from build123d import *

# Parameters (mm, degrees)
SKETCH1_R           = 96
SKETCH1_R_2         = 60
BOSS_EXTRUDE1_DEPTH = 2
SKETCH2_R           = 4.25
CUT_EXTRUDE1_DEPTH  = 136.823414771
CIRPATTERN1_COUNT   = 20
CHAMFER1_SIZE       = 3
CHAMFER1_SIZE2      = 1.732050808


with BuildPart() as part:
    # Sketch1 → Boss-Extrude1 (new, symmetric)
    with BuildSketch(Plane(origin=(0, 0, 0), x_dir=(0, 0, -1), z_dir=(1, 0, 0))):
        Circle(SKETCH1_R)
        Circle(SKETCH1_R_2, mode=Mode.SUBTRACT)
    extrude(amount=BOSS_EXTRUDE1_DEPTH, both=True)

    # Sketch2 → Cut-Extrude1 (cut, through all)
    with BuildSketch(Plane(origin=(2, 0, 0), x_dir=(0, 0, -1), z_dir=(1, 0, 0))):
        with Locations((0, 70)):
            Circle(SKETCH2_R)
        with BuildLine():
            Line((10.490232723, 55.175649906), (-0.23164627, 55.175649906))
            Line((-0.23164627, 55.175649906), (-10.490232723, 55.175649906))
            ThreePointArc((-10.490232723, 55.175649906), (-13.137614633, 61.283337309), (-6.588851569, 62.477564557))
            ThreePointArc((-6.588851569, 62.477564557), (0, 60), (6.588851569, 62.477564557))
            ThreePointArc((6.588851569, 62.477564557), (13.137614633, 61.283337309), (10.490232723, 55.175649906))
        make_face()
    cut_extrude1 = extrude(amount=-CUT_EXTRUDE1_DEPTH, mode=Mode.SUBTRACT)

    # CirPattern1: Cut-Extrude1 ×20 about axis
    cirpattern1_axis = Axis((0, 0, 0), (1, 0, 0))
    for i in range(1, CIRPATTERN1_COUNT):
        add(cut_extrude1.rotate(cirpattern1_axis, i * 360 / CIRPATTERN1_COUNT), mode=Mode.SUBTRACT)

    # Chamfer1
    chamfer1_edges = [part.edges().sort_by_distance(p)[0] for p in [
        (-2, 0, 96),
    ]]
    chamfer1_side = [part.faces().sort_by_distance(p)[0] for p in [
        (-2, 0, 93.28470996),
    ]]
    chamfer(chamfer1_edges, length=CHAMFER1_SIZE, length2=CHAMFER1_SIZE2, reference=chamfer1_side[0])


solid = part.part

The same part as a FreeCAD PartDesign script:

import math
import FreeCAD as App
import Part
import Sketcher
Q = App.Units.Quantity


def edges_at(feature, points):
    """Names of the edges that pass closest to the given points."""
    edges = feature.Shape.Edges
    near = lambda p: min(range(len(edges)), key=lambda i: edges[i].distToShape(Part.Vertex(*p))[0])
    return sorted({f"Edge{near(p) + 1}" for p in points})

doc = App.newDocument("Part")
body = doc.addObject("PartDesign::Body", "Body")

sketch1 = body.newObject("Sketcher::SketchObject", "Sketch")
sketch1.AttachmentSupport = (doc.getObject("YZ_Plane"), [""])
sketch1.MapMode = "FlatFace"
sketch1.addGeometry([
    Part.Circle(App.Vector(0, 0, 0), App.Vector(0, 0, 1), 96),
    Part.Circle(App.Vector(0, 0, 0), App.Vector(0, 0, 1), 60),
], False)
sketch1.addConstraint([
    Sketcher.Constraint("Coincident", 0, 3, -1, 1),
    Sketcher.Constraint("Coincident", 1, 3, -1, 1),
    Sketcher.Constraint("Diameter", 0, Q("192 mm")),
    Sketcher.Constraint("Diameter", 1, Q("120 mm")),
])
pad1 = body.newObject("PartDesign::Pad", "Pad")
pad1.Profile = sketch1
pad1.Length = 4
pad1.Midplane = True

sketch2 = body.newObject("Sketcher::SketchObject", "Sketch001")
sketch2.AttachmentSupport = (doc.getObject("YZ_Plane"), [""])
sketch2.MapMode = "FlatFace"
sketch2.AttachmentOffset = App.Placement(App.Vector(0, 0, 2), App.Rotation())
sketch2.addGeometry([
    Part.Circle(App.Vector(70, 0, 0), App.Vector(0, 0, 1), 4.2),
    Part.LineSegment(App.Vector(55.2, 10.5, 0), App.Vector(55.2, -10.5, 0)),
    Part.ArcOfCircle(Part.Circle(App.Vector(59.3, -9.4, 0), App.Vector(0, 0, 1), 4.2), math.radians(-165), math.radians(41)),
    Part.ArcOfCircle(Part.Circle(App.Vector(70, 0, 0), App.Vector(0, 0, 1), 10), math.radians(139), math.radians(221)),
    Part.ArcOfCircle(Part.Circle(App.Vector(59.3, 9.4, 0), App.Vector(0, 0, 1), 4.2), math.radians(-41), math.radians(165)),
], False)
sketch2.addConstraint([
    Sketcher.Constraint("Coincident", 1, 2, 2, 1),
    Sketcher.Constraint("Tangent", 2, 2, 3, 2),
    Sketcher.Constraint("Tangent", 3, 1, 4, 1),
    Sketcher.Constraint("Coincident", 4, 2, 1, 1),
    Sketcher.Constraint("Vertical", 1),
    Sketcher.Constraint("Coincident", 3, 3, 0, 3),
    Sketcher.Constraint("Equal", 0, 2),
    Sketcher.Constraint("Equal", 2, 4),
    Sketcher.Constraint("Symmetric", 2, 3, 4, 3, -1),
    Sketcher.Constraint("Radius", 3, Q("10 mm")),
    Sketcher.Constraint("Diameter", 0, Q("8.5 mm")),
    Sketcher.Constraint("DistanceX", -1, 1, 0, 3, Q("70 mm")),
    Sketcher.Constraint("DistanceY", 1, 2, 1, 1, Q("20.980465 mm")),
    Sketcher.Constraint("DistanceX", -1, 1, 2, 3, Q("59.280529 mm")),
])
pocket1 = body.newObject("PartDesign::Pocket", "Pocket")
pocket1.Profile = sketch2
pocket1.Type = "ThroughAll"
doc.recompute()

polarpattern = body.newObject("PartDesign::PolarPattern", "PolarPattern")
polarpattern.Originals = [pocket1]
polarpattern.Axis = (doc.getObject("X_Axis"), [""])
polarpattern.Angle = 360
polarpattern.Occurrences = 20
body.Tip = polarpattern
doc.recompute()

chamfer = body.newObject("PartDesign::Chamfer", "Chamfer")
chamfer.Base = (polarpattern, edges_at(polarpattern, [(-2, 0, 96)]))
chamfer.ChamferType = "Two distances"
chamfer.Size = 3
chamfer.Size2 = 1.732051
chamfer.FlipDirection = True

doc.recompute()
